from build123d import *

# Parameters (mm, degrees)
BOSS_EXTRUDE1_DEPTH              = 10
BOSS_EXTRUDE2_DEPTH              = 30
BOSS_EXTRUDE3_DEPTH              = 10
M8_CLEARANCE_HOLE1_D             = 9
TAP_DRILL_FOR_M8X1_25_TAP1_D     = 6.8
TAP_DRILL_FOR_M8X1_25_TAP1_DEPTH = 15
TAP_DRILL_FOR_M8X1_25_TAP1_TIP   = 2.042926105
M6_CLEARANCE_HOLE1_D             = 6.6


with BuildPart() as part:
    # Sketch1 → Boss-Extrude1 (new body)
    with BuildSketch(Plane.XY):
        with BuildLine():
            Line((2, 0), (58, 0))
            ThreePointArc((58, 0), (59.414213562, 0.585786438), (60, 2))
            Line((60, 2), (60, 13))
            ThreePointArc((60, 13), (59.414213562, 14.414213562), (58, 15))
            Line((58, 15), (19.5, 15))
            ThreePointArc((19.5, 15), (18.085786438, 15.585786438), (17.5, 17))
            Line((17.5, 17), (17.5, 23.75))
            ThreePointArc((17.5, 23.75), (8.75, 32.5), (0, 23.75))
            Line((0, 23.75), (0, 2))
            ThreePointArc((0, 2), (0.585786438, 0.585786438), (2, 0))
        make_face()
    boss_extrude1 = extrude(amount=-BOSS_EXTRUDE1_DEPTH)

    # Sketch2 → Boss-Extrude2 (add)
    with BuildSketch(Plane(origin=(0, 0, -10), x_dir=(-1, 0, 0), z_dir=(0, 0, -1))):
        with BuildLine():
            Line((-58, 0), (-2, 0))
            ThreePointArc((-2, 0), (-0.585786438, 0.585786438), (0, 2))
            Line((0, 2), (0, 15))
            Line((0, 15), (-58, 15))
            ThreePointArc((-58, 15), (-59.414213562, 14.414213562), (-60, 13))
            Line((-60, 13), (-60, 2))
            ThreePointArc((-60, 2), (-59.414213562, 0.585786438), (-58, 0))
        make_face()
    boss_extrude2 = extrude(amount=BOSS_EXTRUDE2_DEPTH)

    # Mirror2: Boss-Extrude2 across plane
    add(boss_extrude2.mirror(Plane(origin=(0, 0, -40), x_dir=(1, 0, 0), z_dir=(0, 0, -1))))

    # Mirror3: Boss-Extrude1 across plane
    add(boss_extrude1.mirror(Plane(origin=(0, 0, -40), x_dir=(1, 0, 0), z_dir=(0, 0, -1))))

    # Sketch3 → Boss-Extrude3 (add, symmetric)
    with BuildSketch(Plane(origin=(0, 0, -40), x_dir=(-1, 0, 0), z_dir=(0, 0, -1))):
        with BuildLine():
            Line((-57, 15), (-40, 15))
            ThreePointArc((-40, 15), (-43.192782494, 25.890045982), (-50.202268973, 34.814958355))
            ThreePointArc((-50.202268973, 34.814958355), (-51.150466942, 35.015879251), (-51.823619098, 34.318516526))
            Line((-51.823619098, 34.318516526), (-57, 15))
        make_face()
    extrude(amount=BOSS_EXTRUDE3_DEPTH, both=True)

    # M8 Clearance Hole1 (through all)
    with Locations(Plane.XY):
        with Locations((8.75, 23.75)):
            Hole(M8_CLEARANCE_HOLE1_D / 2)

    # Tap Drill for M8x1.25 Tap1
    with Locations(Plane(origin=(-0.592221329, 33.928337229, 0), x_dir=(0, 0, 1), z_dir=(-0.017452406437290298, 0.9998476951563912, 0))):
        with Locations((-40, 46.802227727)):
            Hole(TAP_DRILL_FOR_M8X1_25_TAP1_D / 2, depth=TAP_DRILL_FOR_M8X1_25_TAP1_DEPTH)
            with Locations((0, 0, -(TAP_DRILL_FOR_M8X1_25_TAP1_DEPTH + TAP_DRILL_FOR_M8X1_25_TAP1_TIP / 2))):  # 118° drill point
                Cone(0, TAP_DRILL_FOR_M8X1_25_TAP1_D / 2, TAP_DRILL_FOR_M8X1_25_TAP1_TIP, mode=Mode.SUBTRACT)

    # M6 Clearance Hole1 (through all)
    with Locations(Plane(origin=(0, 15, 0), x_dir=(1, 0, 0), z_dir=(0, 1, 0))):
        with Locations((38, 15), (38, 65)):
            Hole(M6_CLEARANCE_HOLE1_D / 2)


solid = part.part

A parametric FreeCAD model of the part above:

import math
import FreeCAD as App
import Part
import Sketcher
from FreeCAD import Vector
Q = App.Units.Quantity

doc = App.newDocument("Part")
body = doc.addObject("PartDesign::Body", "Body")

# Sketch on XY plane
sketch1 = doc.addObject("Sketcher::SketchObject", "Sketch")
body.addObject(sketch1)
sketch1.AttachmentSupport = (doc.XY_Plane, [""])
sketch1.MapMode = "FlatFace"
sketch1.addGeometry(Part.LineSegment(Vector(2, 0, 0), Vector(58, 0, 0)), False)
sketch1.addGeometry(Part.ArcOfCircle(Part.Circle(Vector(58, 2, 0), Vector(0, 0, 1), 2), math.radians(-90), math.radians(0)), False)
sketch1.addGeometry(Part.LineSegment(Vector(60, 2, 0), Vector(60, 13, 0)), False)
sketch1.addGeometry(Part.ArcOfCircle(Part.Circle(Vector(58, 13, 0), Vector(0, 0, 1), 2), math.radians(0), math.radians(90)), False)
sketch1.addGeometry(Part.LineSegment(Vector(58, 15, 0), Vector(19.5, 15, 0)), False)
sketch1.addGeometry(Part.ArcOfCircle(Part.Circle(Vector(19.5, 17, 0), Vector(0, 0, 1), 2), math.radians(-180), math.radians(-90)), False)
sketch1.addGeometry(Part.LineSegment(Vector(17.5, 17, 0), Vector(17.5, 23.8, 0)), False)
sketch1.addGeometry(Part.ArcOfCircle(Part.Circle(Vector(8.8, 23.8, 0), Vector(0, 0, 1), 8.8), math.radians(0), math.radians(180)), False)
sketch1.addGeometry(Part.LineSegment(Vector(0, 23.8, 0), Vector(0, 2, 0)), False)
sketch1.addGeometry(Part.ArcOfCircle(Part.Circle(Vector(2, 2, 0), Vector(0, 0, 1), 2), math.radians(-180), math.radians(-90)), False)
sketch1.addConstraint(Sketcher.Constraint("Tangent", 0, 2, 1, 1))
sketch1.addConstraint(Sketcher.Constraint("Tangent", 1, 2, 2, 1))
sketch1.addConstraint(Sketcher.Constraint("Tangent", 2, 2, 3, 1))
sketch1.addConstraint(Sketcher.Constraint("Tangent", 3, 2, 4, 1))
sketch1.addConstraint(Sketcher.Constraint("Tangent", 4, 2, 5, 2))
sketch1.addConstraint(Sketcher.Constraint("Tangent", 5, 1, 6, 1))
sketch1.addConstraint(Sketcher.Constraint("Tangent", 6, 2, 7, 1))
sketch1.addConstraint(Sketcher.Constraint("Tangent", 7, 2, 8, 1))
sketch1.addConstraint(Sketcher.Constraint("Tangent", 8, 2, 9, 1))
sketch1.addConstraint(Sketcher.Constraint("Tangent", 9, 2, 0, 1))
sketch1.addConstraint(Sketcher.Constraint("Horizontal", 0))
sketch1.addConstraint(Sketcher.Constraint("Vertical", 2))
sketch1.addConstraint(Sketcher.Constraint("Horizontal", 4))
sketch1.addConstraint(Sketcher.Constraint("Vertical", 6))
sketch1.addConstraint(Sketcher.Constraint("Vertical", 8))
sketch1.addConstraint(Sketcher.Constraint("Equal", 1, 3))
sketch1.addConstraint(Sketcher.Constraint("Equal", 3, 5))
sketch1.addConstraint(Sketcher.Constraint("Equal", 5, 9))
sketch1.addConstraint(Sketcher.Constraint("PointOnObject", 0, 2, -1))
sketch1.addConstraint(Sketcher.Constraint("PointOnObject", 7, 2, -2))
sketch1.addConstraint(Sketcher.Constraint("Radius", 1, Q("2 mm")))
sketch1.addConstraint(Sketcher.Constraint("DistanceX", 0, 1, 0, 2, Q("56 mm")))
sketch1.addConstraint(Sketcher.Constraint("DistanceY", 2, 1, 2, 2, Q("11 mm")))
sketch1.addConstraint(Sketcher.Constraint("Radius", 7, Q("8.75 mm")))
sketch1.addConstraint(Sketcher.Constraint("DistanceY", 6, 1, 6, 2, Q("6.75 mm")))
pad1 = doc.addObject("PartDesign::Pad", "Pad")
body.addObject(pad1)
pad1.Profile = sketch1
pad1.Length = 10
pad1.Reversed = True

# Sketch on XY plane
sketch2 = doc.addObject("Sketcher::SketchObject", "Sketch001")
body.addObject(sketch2)
sketch2.AttachmentSupport = (doc.XY_Plane, [""])
sketch2.MapMode = "FlatFace"
sketch2.AttachmentOffset = App.Placement(Vector(0, 0, -10), App.Rotation())
sketch2.addGeometry(Part.LineSegment(Vector(58, 0, 0), Vector(2, 0, 0)), False)
sketch2.addGeometry(Part.ArcOfCircle(Part.Circle(Vector(2, 2, 0), Vector(0, 0, 1), 2), math.radians(-180), math.radians(-90)), False)
sketch2.addGeometry(Part.LineSegment(Vector(0, 2, 0), Vector(0, 15, 0)), False)
sketch2.addGeometry(Part.LineSegment(Vector(0, 15, 0), Vector(58, 15, 0)), False)
sketch2.addGeometry(Part.ArcOfCircle(Part.Circle(Vector(58, 13, 0), Vector(0, 0, 1), 2), math.radians(0), math.radians(90)), False)
sketch2.addGeometry(Part.LineSegment(Vector(60, 13, 0), Vector(60, 2, 0)), False)
sketch2.addGeometry(Part.ArcOfCircle(Part.Circle(Vector(58, 2, 0), Vector(0, 0, 1), 2), math.radians(-90), math.radians(0)), False)
sketch2.addConstraint(Sketcher.Constraint("Tangent", 0, 2, 1, 2))
sketch2.addConstraint(Sketcher.Constraint("Tangent", 1, 1, 2, 1))
sketch2.addConstraint(Sketcher.Constraint("Coincident", 2, 2, 3, 1))
sketch2.addConstraint(Sketcher.Constraint("Tangent", 3, 2, 4, 2))
sketch2.addConstraint(Sketcher.Constraint("Tangent", 4, 1, 5, 1))
sketch2.addConstraint(Sketcher.Constraint("Tangent", 5, 2, 6, 2))
sketch2.addConstraint(Sketcher.Constraint("Tangent", 6, 1, 0, 1))
sketch2.addConstraint(Sketcher.Constraint("Horizontal", 0))
sketch2.addConstraint(Sketcher.Constraint("Vertical", 2))
sketch2.addConstraint(Sketcher.Constraint("Horizontal", 3))
sketch2.addConstraint(Sketcher.Constraint("Vertical", 5))
sketch2.addConstraint(Sketcher.Constraint("Equal", 1, 4))
sketch2.addConstraint(Sketcher.Constraint("Equal", 4, 6))
sketch2.addConstraint(Sketcher.Constraint("PointOnObject", 0, 2, -1))
sketch2.addConstraint(Sketcher.Constraint("PointOnObject", 1, 1, -2))
sketch2.addConstraint(Sketcher.Constraint("Radius", 1, Q("2 mm")))
sketch2.addConstraint(Sketcher.Constraint("DistanceX", 0, 2, 0, 1, Q("56 mm")))
sketch2.addConstraint(Sketcher.Constraint("DistanceY", 2, 1, 2, 2, Q("13 mm")))
pad2 = doc.addObject("PartDesign::Pad", "Pad001")
body.addObject(pad2)
pad2.Profile = sketch2
pad2.Length = 30
pad2.Reversed = True
doc.recompute()

datumplane = doc.addObject("PartDesign::Plane", "DatumPlane")
body.addObject(datumplane)
datumplane.AttachmentSupport = (doc.XY_Plane, [""])
datumplane.MapMode = "FlatFace"
datumplane.AttachmentOffset = App.Placement(Vector(0, 0, -40), App.Rotation())
mirrored = doc.addObject("PartDesign::Mirrored", "Mirrored")
body.addObject(mirrored)
mirrored.Originals = [pad2]
mirrored.MirrorPlane = (datumplane, [""])
body.Tip = mirrored
doc.recompute()

datumplane2 = doc.addObject("PartDesign::Plane", "DatumPlane001")
body.addObject(datumplane2)
datumplane2.AttachmentSupport = (doc.XY_Plane, [""])
datumplane2.MapMode = "FlatFace"
datumplane2.AttachmentOffset = App.Placement(Vector(0, 0, -40), App.Rotation())
mirrored2 = doc.addObject("PartDesign::Mirrored", "Mirrored001")
body.addObject(mirrored2)
mirrored2.Originals = [pad1]
mirrored2.MirrorPlane = (datumplane2, [""])
body.Tip = mirrored2

# Sketch on XY plane
sketch3 = doc.addObject("Sketcher::SketchObject", "Sketch002")
body.addObject(sketch3)
sketch3.AttachmentSupport = (doc.XY_Plane, [""])
sketch3.MapMode = "FlatFace"
sketch3.AttachmentOffset = App.Placement(Vector(0, 0, -40), App.Rotation())
sketch3.addGeometry(Part.LineSegment(Vector(57, 15, 0), Vector(40, 15, 0)), False)
sketch3.addGeometry(Part.ArcOfCircle(Part.Circle(Vector(69.9, 12.2, 0), Vector(0, 0, 1), 30), math.radians(131), math.radians(175)), False)
sketch3.addGeometry(Part.ArcOfCircle(Part.Circle(Vector(50.9, 34.1, 0), Vector(0, 0, 1), 1), math.radians(15), math.radians(131)), False)
sketch3.addGeometry(Part.LineSegment(Vector(51.8, 34.3, 0), Vector(57, 15, 0)), False)
sketch3.addConstraint(Sketcher.Constraint("Coincident", 0, 2, 1, 2))
sketch3.addConstraint(Sketcher.Constraint("Tangent", 1, 1, 2, 2))
sketch3.addConstraint(Sketcher.Constraint("Tangent", 2, 1, 3, 1))
sketch3.addConstraint(Sketcher.Constraint("Coincident", 3, 2, 0, 1))
sketch3.addConstraint(Sketcher.Constraint("Horizontal", 0))
sketch3.addConstraint(Sketcher.Constraint("Radius", 1, Q("30 mm")))
sketch3.addConstraint(Sketcher.Constraint("Radius", 2, Q("1 mm")))
sketch3.addConstraint(Sketcher.Constraint("DistanceX", 0, 2, 0, 1, Q("17 mm")))
sketch3.addConstraint(Sketcher.Constraint("Angle", 3, Q("-75 deg")))
sketch3.addConstraint(Sketcher.Constraint("Distance", 3, Q("20 mm")))
sketch3.addConstraint(Sketcher.Constraint("DistanceX", -1, 1, 0, 2, Q("40 mm")))
sketch3.addConstraint(Sketcher.Constraint("DistanceY", -1, 1, 0, 2, Q("15 mm")))
pad3 = doc.addObject("PartDesign::Pad", "Pad002")
body.addObject(pad3)
pad3.Profile = sketch3
pad3.Length = 20
pad3.Midplane = True

# Sketch on XY plane
sketch4 = doc.addObject("Sketcher::SketchObject", "Sketch003")
body.addObject(sketch4)
sketch4.AttachmentSupport = (doc.XY_Plane, [""])
sketch4.MapMode = "FlatFace"
sketch4.addGeometry(Part.Circle(Vector(8.8, 23.8, 0), Vector(0, 0, 1), 4.5), False)
sketch4.addConstraint(Sketcher.Constraint("Diameter", 0, Q("9 mm")))
sketch4.addConstraint(Sketcher.Constraint("DistanceX", -1, 1, 0, 3, Q("8.75 mm")))
sketch4.addConstraint(Sketcher.Constraint("DistanceY", -1, 1, 0, 3, Q("23.75 mm")))
doc.recompute()
hole = doc.addObject("PartDesign::Hole", "Hole")
body.addObject(hole)
hole.Profile = sketch4
hole.ThreadType = "None"
hole.Diameter = 9
hole.DepthType = "ThroughAll"

# Sketch on an angled plane
sketch5 = doc.addObject("Sketcher::SketchObject", "Sketch004")
body.addObject(sketch5)
sketch5.Placement = App.Placement(Vector(-0.592221, 33.928337, 0), App.Rotation(Vector(0, 0, 1), Vector(0.999847695, 0.017452406, 0), Vector(-0.017452406, 0.999847695, 0), "ZXY"))
sketch5.addGeometry(Part.Circle(Vector(-40, 46.8, 0), Vector(0, 0, 1), 3.4), False)
sketch5.addConstraint(Sketcher.Constraint("Diameter", 0, Q("6.8 mm")))
sketch5.addConstraint(Sketcher.Constraint("DistanceX", 0, 3, -1, 1, Q("40 mm")))
sketch5.addConstraint(Sketcher.Constraint("DistanceY", -1, 1, 0, 3, Q("46.802228 mm")))
doc.recompute()
hole2 = doc.addObject("PartDesign::Hole", "Hole001")
body.addObject(hole2)
hole2.Profile = sketch5
hole2.ThreadType = "None"
hole2.Diameter = 6.8
hole2.DepthType = "Dimension"
hole2.Depth = 15
hole2.DrillPoint = "Angled"
hole2.DrillPointAngle = 118

# Sketch on XZ plane
sketch6 = doc.addObject("Sketcher::SketchObject", "Sketch005")
body.addObject(sketch6)
sketch6.AttachmentSupport = (doc.XZ_Plane, [""])
sketch6.MapMode = "FlatFace"
sketch6.AttachmentOffset = App.Placement(Vector(0, 0, -15), App.Rotation())
sketch6.addGeometry(Part.Circle(Vector(38, -15, 0), Vector(0, 0, 1), 3.3), False)
sketch6.addGeometry(Part.Circle(Vector(38, -65, 0), Vector(0, 0, 1), 3.3), False)
sketch6.addConstraint(Sketcher.Constraint("Equal", 0, 1))
sketch6.addConstraint(Sketcher.Constraint("Vertical", 0, 3, 1, 3))
sketch6.addConstraint(Sketcher.Constraint("Diameter", 0, Q("6.6 mm")))
sketch6.addConstraint(Sketcher.Constraint("DistanceX", -1, 1, 0, 3, Q("38 mm")))
sketch6.addConstraint(Sketcher.Constraint("DistanceY", 0, 3, -1, 1, Q("15 mm")))
sketch6.addConstraint(Sketcher.Constraint("DistanceY", 1, 3, -1, 1, Q("65 mm")))
doc.recompute()
hole3 = doc.addObject("PartDesign::Hole", "Hole002")
body.addObject(hole3)
hole3.Profile = sketch6
hole3.ThreadType = "None"
hole3.Diameter = 6.6
hole3.DepthType = "ThroughAll"
hole3.Reversed = True

doc.recompute()
